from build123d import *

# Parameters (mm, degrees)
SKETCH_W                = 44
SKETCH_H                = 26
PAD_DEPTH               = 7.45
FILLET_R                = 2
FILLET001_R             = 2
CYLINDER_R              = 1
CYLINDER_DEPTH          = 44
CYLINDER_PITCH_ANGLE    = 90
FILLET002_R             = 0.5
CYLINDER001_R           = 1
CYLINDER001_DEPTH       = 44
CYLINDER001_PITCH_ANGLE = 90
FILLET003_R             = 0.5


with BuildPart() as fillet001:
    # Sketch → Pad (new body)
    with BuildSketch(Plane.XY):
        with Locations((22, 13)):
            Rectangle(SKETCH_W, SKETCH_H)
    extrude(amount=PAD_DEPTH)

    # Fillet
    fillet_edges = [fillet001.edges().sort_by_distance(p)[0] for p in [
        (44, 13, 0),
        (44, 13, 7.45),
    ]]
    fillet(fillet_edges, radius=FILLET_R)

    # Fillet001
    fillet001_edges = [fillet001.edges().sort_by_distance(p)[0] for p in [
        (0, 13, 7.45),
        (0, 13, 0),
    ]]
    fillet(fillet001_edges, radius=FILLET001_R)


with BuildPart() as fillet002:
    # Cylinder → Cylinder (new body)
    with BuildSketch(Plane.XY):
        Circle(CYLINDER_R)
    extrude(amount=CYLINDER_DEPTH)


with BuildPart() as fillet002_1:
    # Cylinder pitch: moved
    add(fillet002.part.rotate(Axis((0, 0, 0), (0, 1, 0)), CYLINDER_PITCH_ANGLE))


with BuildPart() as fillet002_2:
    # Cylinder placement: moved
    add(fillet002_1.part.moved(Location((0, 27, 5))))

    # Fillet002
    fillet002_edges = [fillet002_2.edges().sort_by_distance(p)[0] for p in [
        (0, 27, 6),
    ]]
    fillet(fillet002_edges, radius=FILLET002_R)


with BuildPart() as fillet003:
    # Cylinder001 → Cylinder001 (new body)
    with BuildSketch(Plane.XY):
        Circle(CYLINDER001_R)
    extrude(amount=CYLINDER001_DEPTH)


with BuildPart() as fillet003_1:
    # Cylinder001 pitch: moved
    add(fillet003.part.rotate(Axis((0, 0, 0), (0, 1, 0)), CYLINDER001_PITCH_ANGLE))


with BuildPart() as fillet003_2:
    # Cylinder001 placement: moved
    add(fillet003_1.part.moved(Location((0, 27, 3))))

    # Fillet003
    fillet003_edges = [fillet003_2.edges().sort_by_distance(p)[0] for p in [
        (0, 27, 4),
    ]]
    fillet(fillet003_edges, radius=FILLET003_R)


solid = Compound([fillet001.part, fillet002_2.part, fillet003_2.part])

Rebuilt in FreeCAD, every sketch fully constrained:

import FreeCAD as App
import Part
import Sketcher
from FreeCAD import Vector
Q = App.Units.Quantity


def edges_at(feature, points):
    """Names of the edges that pass closest to the given points."""
    edges = feature.Shape.Edges
    near = lambda p: min(range(len(edges)), key=lambda i: edges[i].distToShape(Part.Vertex(*p))[0])
    return sorted({f"Edge{near(p) + 1}" for p in points})


def add_polygon(sketch, points):
    """Adds a closed chain of lines whose ends are joined by coincident constraints."""
    first, n = sketch.GeometryCount, len(points)
    for a, b in zip(points, points[1:] + points[:1]):
        sketch.addGeometry(Part.LineSegment(App.Vector(*a, 0), App.Vector(*b, 0)), False)
    for i in range(n):
        sketch.addConstraint(Sketcher.Constraint("Coincident", first + i, 2, first + (i + 1) % n, 1))

doc = App.newDocument("Part")
body = doc.addObject("PartDesign::Body", "Body")

sketch1 = body.newObject("Sketcher::SketchObject", "Sketch")
sketch1.AttachmentSupport = (doc.getObject("XY_Plane"), [""])
sketch1.MapMode = "FlatFace"
add_polygon(sketch1, [(0, 26), (0, 0), (44, 0), (44, 26)])
sketch1.addConstraint([
    Sketcher.Constraint("Vertical", 0),
    Sketcher.Constraint("Horizontal", 1),
    Sketcher.Constraint("Vertical", 2),
    Sketcher.Constraint("Horizontal", 3),
    Sketcher.Constraint("Coincident", 0, 2, -1, 1),
    Sketcher.Constraint("DistanceX", 1, 1, 1, 2, Q("44 mm")),
    Sketcher.Constraint("DistanceY", 0, 2, 0, 1, Q("26 mm")),
])
pad1 = body.newObject("PartDesign::Pad", "Pad")
pad1.Profile = sketch1
pad1.Length = 7.45
doc.recompute()

fillet = body.newObject("PartDesign::Fillet", "Fillet")
fillet.Base = (pad1, edges_at(pad1, [(44, 13, 0), (44, 13, 7.45)]))
fillet.Radius = 2
doc.recompute()

fillet2 = body.newObject("PartDesign::Fillet", "Fillet001")
fillet2.Base = (fillet, edges_at(fillet, [(0, 13, 7.45), (0, 13, 0)]))
fillet2.Radius = 2
body2 = doc.addObject("PartDesign::Body", "Body001")

sketch2 = body2.newObject("Sketcher::SketchObject", "Sketch001")
sketch2.AttachmentSupport = (doc.getObject("XY_Plane001"), [""])
sketch2.MapMode = "FlatFace"
sketch2.addGeometry(Part.Circle(Vector(0, 0, 0), Vector(0, 0, 1), 1), False)
sketch2.addConstraint([
    Sketcher.Constraint("Coincident", 0, 3, -1, 1),
    Sketcher.Constraint("Diameter", 0, Q("2 mm")),
])
pad2 = body2.newObject("PartDesign::Pad", "Pad001")
pad2.Profile = sketch2
pad2.Length = 44
body3 = doc.addObject("PartDesign::Body", "Body002")
doc.recompute()

body2.Placement = App.Placement(Vector(0, 0, 0), App.Rotation(Vector(0, 1, 0), 90))
boolean = body3.newObject("PartDesign::Boolean", "Boolean")
boolean.Type = "Fuse"
boolean.addObjects([body2])
body4 = doc.addObject("PartDesign::Body", "Body003")
doc.recompute()

body3.Placement = App.Placement(Vector(0, 27, 5), App.Rotation(Vector(0, 0, 1), 0))
boolean2 = body4.newObject("PartDesign::Boolean", "Boolean001")
boolean2.Type = "Fuse"
boolean2.addObjects([body3])
doc.recompute()

fillet3 = body4.newObject("PartDesign::Fillet", "Fillet002")
fillet3.Base = (boolean2, edges_at(boolean2, [(0, 27, 6)]))
fillet3.Radius = 0.5
body5 = doc.addObject("PartDesign::Body", "Body004")

sketch3 = body5.newObject("Sketcher::SketchObject", "Sketch002")
sketch3.AttachmentSupport = (doc.getObject("XY_Plane004"), [""])
sketch3.MapMode = "FlatFace"
sketch3.addGeometry(Part.Circle(Vector(0, 0, 0), Vector(0, 0, 1), 1), False)
sketch3.addConstraint([
    Sketcher.Constraint("Coincident", 0, 3, -1, 1),
    Sketcher.Constraint("Diameter", 0, Q("2 mm")),
])
pad3 = body5.newObject("PartDesign::Pad", "Pad002")
pad3.Profile = sketch3
pad3.Length = 44
body6 = doc.addObject("PartDesign::Body", "Body005")
doc.recompute()

body5.Placement = App.Placement(Vector(0, 0, 0), App.Rotation(Vector(0, 1, 0), 90))
boolean3 = body6.newObject("PartDesign::Boolean", "Boolean002")
boolean3.Type = "Fuse"
boolean3.addObjects([body5])
body7 = doc.addObject("PartDesign::Body", "Body006")
doc.recompute()

body6.Placement = App.Placement(Vector(0, 27, 3), App.Rotation(Vector(0, 0, 1), 0))
boolean4 = body7.newObject("PartDesign::Boolean", "Boolean003")
boolean4.Type = "Fuse"
boolean4.addObjects([body6])
doc.recompute()

fillet4 = body7.newObject("PartDesign::Fillet", "Fillet003")
fillet4.Base = (boolean4, edges_at(boolean4, [(0, 27, 4)]))
fillet4.Radius = 0.5

doc.recompute()
